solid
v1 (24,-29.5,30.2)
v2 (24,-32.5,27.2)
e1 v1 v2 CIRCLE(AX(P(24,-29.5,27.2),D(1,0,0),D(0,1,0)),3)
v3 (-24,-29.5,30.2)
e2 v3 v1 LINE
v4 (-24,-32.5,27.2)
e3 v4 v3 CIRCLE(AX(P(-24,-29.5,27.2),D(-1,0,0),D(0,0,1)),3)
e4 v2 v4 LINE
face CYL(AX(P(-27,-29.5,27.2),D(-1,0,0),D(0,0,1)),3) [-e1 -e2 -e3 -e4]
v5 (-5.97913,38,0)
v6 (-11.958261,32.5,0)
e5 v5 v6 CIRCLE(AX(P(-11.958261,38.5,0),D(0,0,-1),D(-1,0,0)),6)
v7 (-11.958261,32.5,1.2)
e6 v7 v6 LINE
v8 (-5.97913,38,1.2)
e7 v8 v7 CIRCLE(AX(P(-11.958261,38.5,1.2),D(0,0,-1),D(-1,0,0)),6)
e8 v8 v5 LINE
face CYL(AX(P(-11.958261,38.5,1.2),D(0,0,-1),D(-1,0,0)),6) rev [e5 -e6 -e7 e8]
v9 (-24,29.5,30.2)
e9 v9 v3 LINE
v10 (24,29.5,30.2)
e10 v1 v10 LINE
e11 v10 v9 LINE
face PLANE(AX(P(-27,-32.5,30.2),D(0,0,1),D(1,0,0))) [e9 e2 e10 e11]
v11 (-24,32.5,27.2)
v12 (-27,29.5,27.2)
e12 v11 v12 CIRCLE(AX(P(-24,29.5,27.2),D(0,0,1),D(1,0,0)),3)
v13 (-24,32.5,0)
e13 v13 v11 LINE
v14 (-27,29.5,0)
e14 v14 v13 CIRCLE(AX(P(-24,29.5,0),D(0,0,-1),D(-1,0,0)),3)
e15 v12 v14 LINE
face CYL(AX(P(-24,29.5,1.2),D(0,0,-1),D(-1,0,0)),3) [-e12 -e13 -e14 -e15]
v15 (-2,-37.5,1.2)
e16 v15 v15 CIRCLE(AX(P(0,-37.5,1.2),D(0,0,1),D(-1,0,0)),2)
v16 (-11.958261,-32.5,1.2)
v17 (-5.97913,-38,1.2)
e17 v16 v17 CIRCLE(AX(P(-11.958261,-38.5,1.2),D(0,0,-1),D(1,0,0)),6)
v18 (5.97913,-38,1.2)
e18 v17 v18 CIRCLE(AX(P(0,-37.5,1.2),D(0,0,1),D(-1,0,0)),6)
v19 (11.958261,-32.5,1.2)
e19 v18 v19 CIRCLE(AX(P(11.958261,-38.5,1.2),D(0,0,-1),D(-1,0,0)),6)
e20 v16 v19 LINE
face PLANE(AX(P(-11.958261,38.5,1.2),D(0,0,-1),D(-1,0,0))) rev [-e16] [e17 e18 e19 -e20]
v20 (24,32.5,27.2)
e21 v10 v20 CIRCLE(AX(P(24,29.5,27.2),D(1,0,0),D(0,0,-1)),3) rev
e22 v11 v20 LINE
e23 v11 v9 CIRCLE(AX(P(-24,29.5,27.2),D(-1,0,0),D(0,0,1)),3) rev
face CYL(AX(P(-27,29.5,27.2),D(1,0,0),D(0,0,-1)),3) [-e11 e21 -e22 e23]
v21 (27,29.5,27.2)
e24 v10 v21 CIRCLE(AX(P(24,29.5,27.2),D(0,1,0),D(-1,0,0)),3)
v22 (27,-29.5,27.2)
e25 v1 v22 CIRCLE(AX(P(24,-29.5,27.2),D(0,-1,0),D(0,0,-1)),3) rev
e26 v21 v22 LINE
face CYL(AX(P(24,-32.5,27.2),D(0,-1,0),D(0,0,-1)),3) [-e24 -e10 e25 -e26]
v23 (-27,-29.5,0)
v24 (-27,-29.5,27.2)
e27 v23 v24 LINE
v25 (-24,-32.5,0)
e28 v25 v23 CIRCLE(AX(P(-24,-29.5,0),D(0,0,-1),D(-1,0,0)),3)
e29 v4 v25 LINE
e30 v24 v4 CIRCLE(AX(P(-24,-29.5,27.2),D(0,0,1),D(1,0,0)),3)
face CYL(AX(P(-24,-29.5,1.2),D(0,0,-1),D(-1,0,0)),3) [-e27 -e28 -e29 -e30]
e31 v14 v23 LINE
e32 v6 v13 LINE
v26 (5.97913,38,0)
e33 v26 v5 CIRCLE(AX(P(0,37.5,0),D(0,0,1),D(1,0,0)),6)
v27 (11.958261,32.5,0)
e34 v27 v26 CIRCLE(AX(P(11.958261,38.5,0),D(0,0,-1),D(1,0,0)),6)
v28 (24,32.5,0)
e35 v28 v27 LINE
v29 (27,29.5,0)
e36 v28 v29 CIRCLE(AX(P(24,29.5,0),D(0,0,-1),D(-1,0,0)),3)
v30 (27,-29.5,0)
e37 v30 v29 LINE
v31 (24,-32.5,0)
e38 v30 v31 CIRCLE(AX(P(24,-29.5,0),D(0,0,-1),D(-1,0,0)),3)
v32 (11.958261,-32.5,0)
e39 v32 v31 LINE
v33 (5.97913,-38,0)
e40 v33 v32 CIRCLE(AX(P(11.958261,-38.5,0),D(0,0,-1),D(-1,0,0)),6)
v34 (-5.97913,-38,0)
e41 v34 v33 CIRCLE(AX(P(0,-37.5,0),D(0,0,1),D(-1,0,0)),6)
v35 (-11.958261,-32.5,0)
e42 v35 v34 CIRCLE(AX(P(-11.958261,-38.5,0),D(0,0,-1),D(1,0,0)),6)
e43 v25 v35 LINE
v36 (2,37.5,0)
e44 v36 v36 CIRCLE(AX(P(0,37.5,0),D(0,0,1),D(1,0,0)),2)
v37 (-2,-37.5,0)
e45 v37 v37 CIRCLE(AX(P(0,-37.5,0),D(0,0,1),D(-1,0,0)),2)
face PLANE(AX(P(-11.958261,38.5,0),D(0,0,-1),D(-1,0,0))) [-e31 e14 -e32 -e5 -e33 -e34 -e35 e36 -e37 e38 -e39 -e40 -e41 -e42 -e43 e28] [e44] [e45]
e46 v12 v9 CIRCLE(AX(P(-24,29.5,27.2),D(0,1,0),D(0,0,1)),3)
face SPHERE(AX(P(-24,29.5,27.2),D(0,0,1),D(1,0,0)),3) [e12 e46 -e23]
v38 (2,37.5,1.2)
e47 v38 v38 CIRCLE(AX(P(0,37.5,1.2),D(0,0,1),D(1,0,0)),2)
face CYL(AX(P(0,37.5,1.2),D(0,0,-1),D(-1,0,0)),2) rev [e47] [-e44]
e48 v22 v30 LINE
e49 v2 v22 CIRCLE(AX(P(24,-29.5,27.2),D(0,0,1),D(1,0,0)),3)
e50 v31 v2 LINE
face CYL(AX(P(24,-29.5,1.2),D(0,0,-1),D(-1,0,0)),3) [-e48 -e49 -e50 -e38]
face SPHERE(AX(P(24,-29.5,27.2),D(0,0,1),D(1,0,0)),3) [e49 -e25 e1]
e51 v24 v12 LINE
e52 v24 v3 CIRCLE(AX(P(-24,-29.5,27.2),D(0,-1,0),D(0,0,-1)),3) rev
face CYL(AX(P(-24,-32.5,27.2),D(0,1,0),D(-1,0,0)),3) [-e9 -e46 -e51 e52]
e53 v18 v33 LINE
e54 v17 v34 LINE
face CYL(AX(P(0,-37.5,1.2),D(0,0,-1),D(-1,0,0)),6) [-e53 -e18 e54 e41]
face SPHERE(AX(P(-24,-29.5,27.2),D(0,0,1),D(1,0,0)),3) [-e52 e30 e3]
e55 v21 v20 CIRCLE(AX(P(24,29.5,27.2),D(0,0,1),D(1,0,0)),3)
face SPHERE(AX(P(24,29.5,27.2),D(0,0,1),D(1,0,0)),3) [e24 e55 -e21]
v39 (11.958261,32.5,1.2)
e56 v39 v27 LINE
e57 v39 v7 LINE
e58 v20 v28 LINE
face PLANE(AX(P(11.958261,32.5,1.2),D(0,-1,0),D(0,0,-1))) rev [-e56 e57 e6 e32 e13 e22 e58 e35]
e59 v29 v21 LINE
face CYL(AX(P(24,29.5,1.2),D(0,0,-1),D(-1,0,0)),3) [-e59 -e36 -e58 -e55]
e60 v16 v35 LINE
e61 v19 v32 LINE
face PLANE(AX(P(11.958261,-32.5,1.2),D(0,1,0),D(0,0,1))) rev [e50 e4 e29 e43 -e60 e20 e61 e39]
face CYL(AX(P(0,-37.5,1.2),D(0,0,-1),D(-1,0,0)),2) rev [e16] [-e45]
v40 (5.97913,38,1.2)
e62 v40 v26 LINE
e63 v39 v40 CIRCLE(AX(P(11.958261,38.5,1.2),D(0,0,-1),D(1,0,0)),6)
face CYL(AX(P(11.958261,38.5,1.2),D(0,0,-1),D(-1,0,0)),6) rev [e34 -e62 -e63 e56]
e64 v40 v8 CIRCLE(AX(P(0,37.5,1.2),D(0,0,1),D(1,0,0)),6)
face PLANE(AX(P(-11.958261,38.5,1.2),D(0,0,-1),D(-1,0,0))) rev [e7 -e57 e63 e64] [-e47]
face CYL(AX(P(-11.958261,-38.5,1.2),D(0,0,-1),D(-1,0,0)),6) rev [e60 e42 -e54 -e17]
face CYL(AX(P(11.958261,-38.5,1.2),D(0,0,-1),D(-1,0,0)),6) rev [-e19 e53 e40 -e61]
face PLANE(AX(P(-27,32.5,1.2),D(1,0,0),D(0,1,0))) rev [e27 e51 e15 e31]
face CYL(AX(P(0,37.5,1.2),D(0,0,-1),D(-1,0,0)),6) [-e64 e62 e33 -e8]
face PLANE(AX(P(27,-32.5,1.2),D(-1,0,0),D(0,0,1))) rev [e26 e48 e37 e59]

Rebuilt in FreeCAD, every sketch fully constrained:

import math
import FreeCAD as App
import Part
import Sketcher
from FreeCAD import Vector


def edges_at(feature, points):
    """Names of the edges that pass closest to the given points."""
    edges = feature.Shape.Edges
    near = lambda p: min(range(len(edges)), key=lambda i: edges[i].distToShape(Part.Vertex(*p))[0])
    return sorted({f"Edge{near(p) + 1}" for p in points})


def add_polygon(sketch, points):
    """Adds a closed chain of lines whose ends are joined by coincident constraints."""
    first, n = sketch.GeometryCount, len(points)
    for a, b in zip(points, points[1:] + points[:1]):
        sketch.addGeometry(Part.LineSegment(App.Vector(*a, 0), App.Vector(*b, 0)), False)
    for i in range(n):
        sketch.addConstraint(Sketcher.Constraint("Coincident", first + i, 2, first + (i + 1) % n, 1))

doc = App.newDocument("Part")
body = doc.addObject("PartDesign::Body", "Body")

# Sketch on XY plane
sketch1 = doc.addObject("Sketcher::SketchObject", "Sketch")
body.addObject(sketch1)
sketch1.AttachmentSupport = (doc.XY_Plane, [""])
sketch1.MapMode = "FlatFace"
sketch1.addGeometry([
    Part.LineSegment(Vector(-12, 32.5, 0), Vector(-27, 32.5, 0)),  # 0
    Part.LineSegment(Vector(-27, 32.5, 0), Vector(-27, -32.5, 0)),  # 1
    Part.LineSegment(Vector(-27, -32.5, 0), Vector(-12, -32.5, 0)),  # 2
    Part.ArcOfCircle(Part.Circle(Vector(-12, -38.5, 0), Vector(0, 0, 1), 6), math.radians(5), math.radians(90)),  # 3
    Part.ArcOfCircle(Part.Circle(Vector(0, -37.5, 0), Vector(0, 0, 1), 6), math.radians(-175), math.radians(-5)),  # 4
    Part.ArcOfCircle(Part.Circle(Vector(12, -38.5, 0), Vector(0, 0, 1), 6), math.radians(90), math.radians(175)),  # 5
    Part.LineSegment(Vector(12, -32.5, 0), Vector(27, -32.5, 0)),  # 6
    Part.LineSegment(Vector(27, -32.5, 0), Vector(27, 32.5, 0)),  # 7
    Part.LineSegment(Vector(27, 32.5, 0), Vector(12, 32.5, 0)),  # 8
    Part.ArcOfCircle(Part.Circle(Vector(12, 38.5, 0), Vector(0, 0, 1), 6), math.radians(-175), math.radians(-90)),  # 9
    Part.ArcOfCircle(Part.Circle(Vector(0, 37.5, 0), Vector(0, 0, 1), 6), math.radians(5), math.radians(175)),  # 10
    Part.ArcOfCircle(Part.Circle(Vector(-12, 38.5, 0), Vector(0, 0, 1), 6), math.radians(-90), math.radians(-5)),  # 11
    Part.Circle(Vector(0, -37.5, 0), Vector(0, 0, 1), 2),  # 12
    Part.Circle(Vector(0, 37.5, 0), Vector(0, 0, 1), 2),  # 13
], False)
sketch1.addConstraint([
    Sketcher.Constraint("Coincident", 0, 2, 1, 1),
    Sketcher.Constraint("Coincident", 1, 2, 2, 1),
    Sketcher.Constraint("Tangent", 2, 2, 3, 2),
    Sketcher.Constraint("Tangent", 3, 1, 4, 1),
    Sketcher.Constraint("Tangent", 4, 2, 5, 2),
    Sketcher.Constraint("Tangent", 5, 1, 6, 1),
    Sketcher.Constraint("Coincident", 6, 2, 7, 1),
    Sketcher.Constraint("Coincident", 7, 2, 8, 1),
    Sketcher.Constraint("Tangent", 8, 2, 9, 2),
    Sketcher.Constraint("Tangent", 9, 1, 10, 1),
    Sketcher.Constraint("Tangent", 10, 2, 11, 2),
    Sketcher.Constraint("Tangent", 11, 1, 0, 1),
    Sketcher.Constraint("Horizontal", 0),
    Sketcher.Constraint("Vertical", 1),
    Sketcher.Constraint("Horizontal", 2),
    Sketcher.Constraint("Horizontal", 6),
    Sketcher.Constraint("Vertical", 7),
    Sketcher.Constraint("Horizontal", 8),
    Sketcher.Constraint("Coincident", 12, 3, 4, 3),
    Sketcher.Constraint("Coincident", 13, 3, 10, 3),
    Sketcher.Constraint("Equal", 3, 4),
    Sketcher.Constraint("Equal", 4, 5),
    Sketcher.Constraint("Equal", 5, 9),
    Sketcher.Constraint("Equal", 9, 10),
    Sketcher.Constraint("Equal", 10, 11),
    Sketcher.Constraint("Equal", 12, 13),
    Sketcher.Constraint("Symmetric", 3, 3, 9, 3, -1, 1),
    Sketcher.Constraint("Symmetric", 5, 3, 11, 3, -1, 1),
    Sketcher.Constraint("Symmetric", 3, 3, 5, 3, -2),
    Sketcher.Constraint("Equal", 2, 6),
    Sketcher.Constraint("Diameter", 12, 4.0),
    Sketcher.Constraint("Radius", 3, 6.0),
    Sketcher.Constraint("DistanceY", 1, 2, 1, 1, 65.0),
    Sketcher.Constraint("DistanceX", 0, 2, -1, 1, 27.0),
    Sketcher.Constraint("DistanceY", 3, 1, -1, 1, 38.0),
])
pad1 = doc.addObject("PartDesign::Pad", "Pad")
body.addObject(pad1)
pad1.Profile = sketch1
pad1.Length = 1.2

# Sketch on XY plane
sketch2 = doc.addObject("Sketcher::SketchObject", "Sketch001")
body.addObject(sketch2)
sketch2.AttachmentSupport = (doc.XY_Plane, [""])
sketch2.MapMode = "FlatFace"
sketch2.AttachmentOffset = App.Placement(Vector(0, 0, 1.2), App.Rotation())
add_polygon(sketch2, [(-27, 32), (-27, -32), (27, -32), (27, 32)])  # lines 0-3
sketch2.addConstraint([
    Sketcher.Constraint("Vertical", 0),
    Sketcher.Constraint("Horizontal", 1),
    Sketcher.Constraint("Vertical", 2),
    Sketcher.Constraint("Horizontal", 3),
    Sketcher.Constraint("Symmetric", 0, 2, 2, 2, -1, 1),
    Sketcher.Constraint("DistanceX", 1, 1, 1, 2, 54.0),
    Sketcher.Constraint("DistanceY", 0, 2, 0, 1, 65.0),
])
pad2 = doc.addObject("PartDesign::Pad", "Pad001")
body.addObject(pad2)
pad2.Profile = sketch2
pad2.Length = 29
doc.recompute()

fillet = doc.addObject("PartDesign::Fillet", "Fillet")
body.addObject(fillet)
fillet.Base = (pad2, edges_at(pad2, [
    (27, 32.5, 15.1),
    (27, -32.5, 15.1),
    (-27, -32.5, 15.1),
    (-27, 32.5, 15.1),
    (-27, 0, 30.2),
    (0, -32.5, 30.2),
    (27, 0, 30.2),
    (0, 32.5, 30.2),
]))
fillet.Radius = 3

doc.recompute()
